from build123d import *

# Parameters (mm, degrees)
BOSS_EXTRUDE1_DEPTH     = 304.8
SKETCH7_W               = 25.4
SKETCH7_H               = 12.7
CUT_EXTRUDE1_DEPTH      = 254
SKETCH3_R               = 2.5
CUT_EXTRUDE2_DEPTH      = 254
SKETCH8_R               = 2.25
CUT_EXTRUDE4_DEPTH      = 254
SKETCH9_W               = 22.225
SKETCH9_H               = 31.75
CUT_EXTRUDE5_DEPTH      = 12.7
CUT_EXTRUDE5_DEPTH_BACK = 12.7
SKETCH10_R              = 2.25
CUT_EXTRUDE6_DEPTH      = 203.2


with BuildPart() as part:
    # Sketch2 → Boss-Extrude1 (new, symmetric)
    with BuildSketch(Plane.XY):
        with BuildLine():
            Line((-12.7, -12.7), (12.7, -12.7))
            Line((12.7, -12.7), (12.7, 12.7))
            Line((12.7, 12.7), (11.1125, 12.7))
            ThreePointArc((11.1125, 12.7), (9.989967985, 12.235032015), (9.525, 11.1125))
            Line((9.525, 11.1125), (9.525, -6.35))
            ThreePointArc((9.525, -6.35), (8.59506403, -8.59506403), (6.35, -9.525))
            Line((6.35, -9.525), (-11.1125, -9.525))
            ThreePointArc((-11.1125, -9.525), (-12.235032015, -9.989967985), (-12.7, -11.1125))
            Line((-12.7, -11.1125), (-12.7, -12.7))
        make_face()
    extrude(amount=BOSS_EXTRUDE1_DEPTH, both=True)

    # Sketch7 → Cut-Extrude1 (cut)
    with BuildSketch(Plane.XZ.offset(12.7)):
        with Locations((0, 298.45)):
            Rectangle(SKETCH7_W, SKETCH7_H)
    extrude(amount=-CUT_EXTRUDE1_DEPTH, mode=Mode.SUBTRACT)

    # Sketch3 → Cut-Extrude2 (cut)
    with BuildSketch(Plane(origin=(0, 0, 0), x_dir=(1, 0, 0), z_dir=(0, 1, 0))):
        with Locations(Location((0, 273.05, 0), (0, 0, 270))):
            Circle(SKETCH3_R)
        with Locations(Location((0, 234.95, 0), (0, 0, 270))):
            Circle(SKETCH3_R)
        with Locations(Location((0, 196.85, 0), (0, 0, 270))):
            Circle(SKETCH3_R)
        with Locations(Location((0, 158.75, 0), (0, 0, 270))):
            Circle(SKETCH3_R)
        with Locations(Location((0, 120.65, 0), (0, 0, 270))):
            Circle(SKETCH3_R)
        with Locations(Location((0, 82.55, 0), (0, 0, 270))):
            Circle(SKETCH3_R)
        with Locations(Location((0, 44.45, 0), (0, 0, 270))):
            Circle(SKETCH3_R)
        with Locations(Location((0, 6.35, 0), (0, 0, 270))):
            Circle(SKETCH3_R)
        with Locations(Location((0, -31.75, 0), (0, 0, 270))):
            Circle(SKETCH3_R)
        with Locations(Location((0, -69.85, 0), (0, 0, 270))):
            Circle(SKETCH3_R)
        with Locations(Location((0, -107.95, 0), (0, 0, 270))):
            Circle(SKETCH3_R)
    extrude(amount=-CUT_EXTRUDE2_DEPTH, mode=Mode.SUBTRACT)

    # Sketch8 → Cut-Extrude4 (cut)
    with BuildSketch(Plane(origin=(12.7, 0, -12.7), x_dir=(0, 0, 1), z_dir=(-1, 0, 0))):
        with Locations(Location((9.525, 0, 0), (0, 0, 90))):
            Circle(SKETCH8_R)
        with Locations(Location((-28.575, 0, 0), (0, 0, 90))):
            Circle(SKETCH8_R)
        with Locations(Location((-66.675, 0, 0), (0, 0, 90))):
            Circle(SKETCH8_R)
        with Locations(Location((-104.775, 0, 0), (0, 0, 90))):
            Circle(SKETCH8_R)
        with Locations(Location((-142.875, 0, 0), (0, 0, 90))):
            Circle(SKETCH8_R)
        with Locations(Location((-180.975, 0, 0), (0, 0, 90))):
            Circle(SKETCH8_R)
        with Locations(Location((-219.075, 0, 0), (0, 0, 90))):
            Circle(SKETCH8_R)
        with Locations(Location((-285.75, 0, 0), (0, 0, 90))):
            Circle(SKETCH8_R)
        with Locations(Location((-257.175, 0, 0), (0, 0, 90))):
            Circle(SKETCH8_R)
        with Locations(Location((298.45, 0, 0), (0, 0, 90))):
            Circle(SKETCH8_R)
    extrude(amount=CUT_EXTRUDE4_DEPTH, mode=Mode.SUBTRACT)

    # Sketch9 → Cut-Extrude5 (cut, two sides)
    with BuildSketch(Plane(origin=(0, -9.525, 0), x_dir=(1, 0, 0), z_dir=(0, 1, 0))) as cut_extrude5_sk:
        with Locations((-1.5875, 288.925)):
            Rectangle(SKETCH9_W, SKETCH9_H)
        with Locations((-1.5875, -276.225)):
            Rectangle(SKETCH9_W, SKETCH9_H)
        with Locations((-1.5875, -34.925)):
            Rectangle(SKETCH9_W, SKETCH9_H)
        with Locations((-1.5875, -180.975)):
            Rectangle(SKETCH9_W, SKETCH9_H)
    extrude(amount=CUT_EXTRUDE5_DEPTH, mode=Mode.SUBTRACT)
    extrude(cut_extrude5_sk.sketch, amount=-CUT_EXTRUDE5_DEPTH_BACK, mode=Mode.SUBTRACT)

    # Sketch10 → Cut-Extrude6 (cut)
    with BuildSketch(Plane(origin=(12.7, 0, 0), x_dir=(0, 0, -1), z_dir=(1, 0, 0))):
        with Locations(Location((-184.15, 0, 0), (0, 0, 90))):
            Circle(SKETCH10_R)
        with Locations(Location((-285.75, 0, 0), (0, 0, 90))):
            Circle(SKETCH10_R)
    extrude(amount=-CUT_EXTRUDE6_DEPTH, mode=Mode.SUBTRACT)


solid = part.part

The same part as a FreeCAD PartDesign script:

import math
import FreeCAD as App
import Part
import Sketcher
from FreeCAD import Vector
Q = App.Units.Quantity


def add_polygon(sketch, points):
    """Adds a closed chain of lines whose ends are joined by coincident constraints."""
    first, n = sketch.GeometryCount, len(points)
    for a, b in zip(points, points[1:] + points[:1]):
        sketch.addGeometry(Part.LineSegment(App.Vector(*a, 0), App.Vector(*b, 0)), False)
    for i in range(n):
        sketch.addConstraint(Sketcher.Constraint("Coincident", first + i, 2, first + (i + 1) % n, 1))

doc = App.newDocument("Part")
body = doc.addObject("PartDesign::Body", "Body")

# Sketch on XY plane
sketch1 = body.newObject("Sketcher::SketchObject", "Sketch")
sketch1.AttachmentSupport = (doc.getObject("XY_Plane"), [""])
sketch1.MapMode = "FlatFace"
sketch1.addGeometry(Part.LineSegment(Vector(-12.7, -12.7, 0), Vector(12.7, -12.7, 0)), False)
sketch1.addGeometry(Part.LineSegment(Vector(12.7, -12.7, 0), Vector(12.7, 12.7, 0)), False)
sketch1.addGeometry(Part.LineSegment(Vector(12.7, 12.7, 0), Vector(11.1125, 12.7, 0)), False)
sketch1.addGeometry(Part.ArcOfCircle(Part.Circle(Vector(11.1125, 11.1125, 0), Vector(0, 0, 1), 1.5875), math.radians(90), math.radians(180)), False)
sketch1.addGeometry(Part.LineSegment(Vector(9.525, 11.1125, 0), Vector(9.525, -6.35, 0)), False)
sketch1.addGeometry(Part.ArcOfCircle(Part.Circle(Vector(6.35, -6.35, 0), Vector(0, 0, 1), 3.175), math.radians(-90), math.radians(0)), False)
sketch1.addGeometry(Part.LineSegment(Vector(6.35, -9.525, 0), Vector(-11.1125, -9.525, 0)), False)
sketch1.addGeometry(Part.ArcOfCircle(Part.Circle(Vector(-11.1125, -11.1125, 0), Vector(0, 0, 1), 1.5875), math.radians(90), math.radians(180)), False)
sketch1.addGeometry(Part.LineSegment(Vector(-12.7, -11.1125, 0), Vector(-12.7, -12.7, 0)), False)
sketch1.addConstraint(Sketcher.Constraint("Coincident", 0, 2, 1, 1))
sketch1.addConstraint(Sketcher.Constraint("Coincident", 1, 2, 2, 1))
sketch1.addConstraint(Sketcher.Constraint("Tangent", 2, 2, 3, 1))
sketch1.addConstraint(Sketcher.Constraint("Tangent", 3, 2, 4, 1))
sketch1.addConstraint(Sketcher.Constraint("Tangent", 4, 2, 5, 2))
sketch1.addConstraint(Sketcher.Constraint("Tangent", 5, 1, 6, 1))
sketch1.addConstraint(Sketcher.Constraint("Tangent", 6, 2, 7, 1))
sketch1.addConstraint(Sketcher.Constraint("Tangent", 7, 2, 8, 1))
sketch1.addConstraint(Sketcher.Constraint("Coincident", 8, 2, 0, 1))
sketch1.addConstraint(Sketcher.Constraint("Horizontal", 0))
sketch1.addConstraint(Sketcher.Constraint("Vertical", 1))
sketch1.addConstraint(Sketcher.Constraint("Horizontal", 2))
sketch1.addConstraint(Sketcher.Constraint("Vertical", 4))
sketch1.addConstraint(Sketcher.Constraint("Horizontal", 6))
sketch1.addConstraint(Sketcher.Constraint("Vertical", 8))
sketch1.addConstraint(Sketcher.Constraint("Equal", 3, 7))
sketch1.addConstraint(Sketcher.Constraint("Symmetric", 3, 3, 7, 3, -1, 1))
sketch1.addConstraint(Sketcher.Constraint("Symmetric", 1, 2, 8, 2, -1, 1))
sketch1.addConstraint(Sketcher.Constraint("Equal", 0, 1))
sketch1.addConstraint(Sketcher.Constraint("DistanceX", 0, 1, 0, 2, Q("1 in")))
sketch1.addConstraint(Sketcher.Constraint("Radius", 3, Q("0.0625 in")))
sketch1.addConstraint(Sketcher.Constraint("Radius", 5, Q("0.125 in")))
pad1 = body.newObject("PartDesign::Pad", "Pad")
pad1.Profile = sketch1
pad1.Length = Q("24 in")
pad1.Midplane = True

# Sketch on XZ plane
sketch2 = body.newObject("Sketcher::SketchObject", "Sketch001")
sketch2.AttachmentSupport = (doc.getObject("XZ_Plane"), [""])
sketch2.MapMode = "FlatFace"
sketch2.AttachmentOffset = App.Placement(Vector(0, 0, 0.5 * 25.4), App.Rotation())
add_polygon(sketch2, [(-12.7, 304.8), (-12.7, 292.1), (12.7, 292.1), (12.7, 304.8)])  # lines 0-3
sketch2.addConstraint(Sketcher.Constraint("Vertical", 0))
sketch2.addConstraint(Sketcher.Constraint("Horizontal", 1))
sketch2.addConstraint(Sketcher.Constraint("Vertical", 2))
sketch2.addConstraint(Sketcher.Constraint("Horizontal", 3))
sketch2.addConstraint(Sketcher.Constraint("DistanceX", 1, 1, 1, 2, Q("1 in")))
sketch2.addConstraint(Sketcher.Constraint("DistanceY", 0, 2, 0, 1, Q("0.5 in")))
sketch2.addConstraint(Sketcher.Constraint("DistanceY", -1, 1, 2, 2, Q("12 in")))
sketch2.addConstraint(Sketcher.Constraint("DistanceX", 0, 2, -1, 1, Q("0.5 in")))
pocket1 = body.newObject("PartDesign::Pocket", "Pocket")
pocket1.Profile = sketch2
pocket1.Length = Q("10 in")

# Sketch on XZ plane
sketch3 = body.newObject("Sketcher::SketchObject", "Sketch002")
sketch3.AttachmentSupport = (doc.getObject("XZ_Plane"), [""])
sketch3.MapMode = "FlatFace"
sketch3.addGeometry(Part.Circle(Vector(0, -273.05, 0), Vector(0, 0, 1), 2.5), False)
sketch3.addGeometry(Part.Circle(Vector(0, -234.95, 0), Vector(0, 0, 1), 2.5), False)
sketch3.addGeometry(Part.Circle(Vector(0, -196.85, 0), Vector(0, 0, 1), 2.5), False)
sketch3.addGeometry(Part.Circle(Vector(0, -158.75, 0), Vector(0, 0, 1), 2.5), False)
sketch3.addGeometry(Part.Circle(Vector(0, -120.65, 0), Vector(0, 0, 1), 2.5), False)
sketch3.addGeometry(Part.Circle(Vector(0, -82.55, 0), Vector(0, 0, 1), 2.5), False)
sketch3.addGeometry(Part.Circle(Vector(0, -44.45, 0), Vector(0, 0, 1), 2.5), False)
sketch3.addGeometry(Part.Circle(Vector(0, -6.35, 0), Vector(0, 0, 1), 2.5), False)
sketch3.addGeometry(Part.Circle(Vector(0, 31.75, 0), Vector(0, 0, 1), 2.5), False)
sketch3.addGeometry(Part.Circle(Vector(0, 69.85, 0), Vector(0, 0, 1), 2.5), False)
sketch3.addGeometry(Part.Circle(Vector(0, 107.95, 0), Vector(0, 0, 1), 2.5), False)
sketch3.addConstraint(Sketcher.Constraint("Equal", 0, 1))
sketch3.addConstraint(Sketcher.Constraint("Equal", 1, 2))
sketch3.addConstraint(Sketcher.Constraint("Equal", 2, 3))
sketch3.addConstraint(Sketcher.Constraint("Equal", 3, 4))
sketch3.addConstraint(Sketcher.Constraint("Equal", 4, 5))
sketch3.addConstraint(Sketcher.Constraint("Equal", 5, 6))
sketch3.addConstraint(Sketcher.Constraint("Equal", 6, 7))
sketch3.addConstraint(Sketcher.Constraint("Equal", 7, 8))
sketch3.addConstraint(Sketcher.Constraint("Equal", 8, 9))
sketch3.addConstraint(Sketcher.Constraint("Equal", 9, 10))
sketch3.addConstraint(Sketcher.Constraint("PointOnObject", 0, 3, -2))
sketch3.addConstraint(Sketcher.Constraint("PointOnObject", 1, 3, -2))
sketch3.addConstraint(Sketcher.Constraint("PointOnObject", 2, 3, -2))
sketch3.addConstraint(Sketcher.Constraint("PointOnObject", 3, 3, -2))
sketch3.addConstraint(Sketcher.Constraint("PointOnObject", 4, 3, -2))
sketch3.addConstraint(Sketcher.Constraint("PointOnObject", 5, 3, -2))
sketch3.addConstraint(Sketcher.Constraint("PointOnObject", 6, 3, -2))
sketch3.addConstraint(Sketcher.Constraint("PointOnObject", 7, 3, -2))
sketch3.addConstraint(Sketcher.Constraint("PointOnObject", 8, 3, -2))
sketch3.addConstraint(Sketcher.Constraint("PointOnObject", 9, 3, -2))
sketch3.addConstraint(Sketcher.Constraint("PointOnObject", 10, 3, -2))
sketch3.addConstraint(Sketcher.Constraint("DistanceY", 0, 3, 2, 3, Q("3 in")))
sketch3.addConstraint(Sketcher.Constraint("DistanceY", 1, 3, 3, 3, Q("3 in")))
sketch3.addConstraint(Sketcher.Constraint("DistanceY", 2, 3, 4, 3, Q("3 in")))
sketch3.addConstraint(Sketcher.Constraint("DistanceY", 3, 3, 5, 3, Q("3 in")))
sketch3.addConstraint(Sketcher.Constraint("DistanceY", 4, 3, 6, 3, Q("3 in")))
sketch3.addConstraint(Sketcher.Constraint("DistanceY", 5, 3, 7, 3, Q("3 in")))
sketch3.addConstraint(Sketcher.Constraint("DistanceY", 6, 3, 8, 3, Q("3 in")))
sketch3.addConstraint(Sketcher.Constraint("DistanceY", 7, 3, 9, 3, Q("3 in")))
sketch3.addConstraint(Sketcher.Constraint("DistanceY", 8, 3, 10, 3, Q("3 in")))
sketch3.addConstraint(Sketcher.Constraint("DistanceY", 0, 3, 1, 3, Q("1.5 in")))
sketch3.addConstraint(Sketcher.Constraint("Diameter", 0, 5.0))
sketch3.addConstraint(Sketcher.Constraint("DistanceY", 0, 3, -1, 1, Q("10.75 in")))
pocket2 = body.newObject("PartDesign::Pocket", "Pocket001")
pocket2.Profile = sketch3
pocket2.Length = Q("10 in")
pocket2.Reversed = True

# Sketch on YZ plane
sketch4 = body.newObject("Sketcher::SketchObject", "Sketch003")
sketch4.AttachmentSupport = (doc.getObject("YZ_Plane"), [""])
sketch4.MapMode = "FlatFace"
sketch4.AttachmentOffset = App.Placement(Vector(0, 0, 0.5 * 25.4), App.Rotation())
sketch4.addGeometry(Part.Circle(Vector(0, -3.175, 0), Vector(0, 0, 1), 2.25), False)
sketch4.addGeometry(Part.Circle(Vector(0, -41.275, 0), Vector(0, 0, 1), 2.25), False)
sketch4.addGeometry(Part.Circle(Vector(0, -79.375, 0), Vector(0, 0, 1), 2.25), False)
sketch4.addGeometry(Part.Circle(Vector(0, -117.475, 0), Vector(0, 0, 1), 2.25), False)
sketch4.addGeometry(Part.Circle(Vector(0, -155.575, 0), Vector(0, 0, 1), 2.25), False)
sketch4.addGeometry(Part.Circle(Vector(0, -193.675, 0), Vector(0, 0, 1), 2.25), False)
sketch4.addGeometry(Part.Circle(Vector(0, -231.775, 0), Vector(0, 0, 1), 2.25), False)
sketch4.addGeometry(Part.Circle(Vector(0, -298.45, 0), Vector(0, 0, 1), 2.25), False)
sketch4.addGeometry(Part.Circle(Vector(0, -269.875, 0), Vector(0, 0, 1), 2.25), False)
sketch4.addGeometry(Part.Circle(Vector(0, 285.75, 0), Vector(0, 0, 1), 2.25), False)
sketch4.addConstraint(Sketcher.Constraint("Equal", 0, 1))
sketch4.addConstraint(Sketcher.Constraint("Equal", 1, 2))
sketch4.addConstraint(Sketcher.Constraint("Equal", 2, 3))
sketch4.addConstraint(Sketcher.Constraint("Equal", 3, 4))
sketch4.addConstraint(Sketcher.Constraint("Equal", 4, 5))
sketch4.addConstraint(Sketcher.Constraint("Equal", 5, 6))
sketch4.addConstraint(Sketcher.Constraint("Equal", 6, 7))
sketch4.addConstraint(Sketcher.Constraint("Equal", 7, 8))
sketch4.addConstraint(Sketcher.Constraint("Equal", 8, 9))
sketch4.addConstraint(Sketcher.Constraint("PointOnObject", 0, 3, -2))
sketch4.addConstraint(Sketcher.Constraint("PointOnObject", 1, 3, -2))
sketch4.addConstraint(Sketcher.Constraint("PointOnObject", 2, 3, -2))
sketch4.addConstraint(Sketcher.Constraint("PointOnObject", 3, 3, -2))
sketch4.addConstraint(Sketcher.Constraint("PointOnObject", 4, 3, -2))
sketch4.addConstraint(Sketcher.Constraint("PointOnObject", 5, 3, -2))
sketch4.addConstraint(Sketcher.Constraint("PointOnObject", 6, 3, -2))
sketch4.addConstraint(Sketcher.Constraint("PointOnObject", 7, 3, -2))
sketch4.addConstraint(Sketcher.Constraint("PointOnObject", 8, 3, -2))
sketch4.addConstraint(Sketcher.Constraint("PointOnObject", 9, 3, -2))
sketch4.addConstraint(Sketcher.Constraint("DistanceY", 2, 3, 0, 3, Q("3 in")))
sketch4.addConstraint(Sketcher.Constraint("DistanceY", 3, 3, 1, 3, Q("3 in")))
sketch4.addConstraint(Sketcher.Constraint("DistanceY", 4, 3, 2, 3, Q("3 in")))
sketch4.addConstraint(Sketcher.Constraint("DistanceY", 5, 3, 3, 3, Q("3 in")))
sketch4.addConstraint(Sketcher.Constraint("DistanceY", 6, 3, 4, 3, Q("3 in")))
sketch4.addConstraint(Sketcher.Constraint("DistanceY", 8, 3, 5, 3, Q("3 in")))
sketch4.addConstraint(Sketcher.Constraint("DistanceY", 1, 3, 0, 3, Q("1.5 in")))
sketch4.addConstraint(Sketcher.Constraint("Diameter", 0, 4.5))
sketch4.addConstraint(Sketcher.Constraint("DistanceY", 7, 3, -1, 1, Q("11.75 in")))
sketch4.addConstraint(Sketcher.Constraint("DistanceY", -1, 1, 9, 3, Q("11.25 in")))
sketch4.addConstraint(Sketcher.Constraint("DistanceY", 0, 3, -1, 1, Q("0.125 in")))
pocket3 = body.newObject("PartDesign::Pocket", "Pocket002")
pocket3.Profile = sketch4
pocket3.Length = Q("10 in")

# Sketch on XZ plane
sketch5 = body.newObject("Sketcher::SketchObject", "Sketch004")
sketch5.AttachmentSupport = (doc.getObject("XZ_Plane"), [""])
sketch5.MapMode = "FlatFace"
sketch5.AttachmentOffset = App.Placement(Vector(0, 0, 0.375 * 25.4), App.Rotation())
add_polygon(sketch5, [(-12.7, -304.8), (-12.7, -273.05), (9.525, -273.05), (9.525, -304.8)])  # lines 0-3
add_polygon(sketch5, [(-12.7, 260.35), (-12.7, 292.1), (9.525, 292.1), (9.525, 260.35)])  # lines 4-7
add_polygon(sketch5, [(-12.7, 19.05), (-12.7, 50.8), (9.525, 50.8), (9.525, 19.05)])  # lines 8-11
add_polygon(sketch5, [(-12.7, 165.1), (-12.7, 196.85), (9.525, 196.85), (9.525, 165.1)])  # lines 12-15
sketch5.addConstraint(Sketcher.Constraint("Vertical", 0))
sketch5.addConstraint(Sketcher.Constraint("Horizontal", 1))
sketch5.addConstraint(Sketcher.Constraint("Vertical", 2))
sketch5.addConstraint(Sketcher.Constraint("Horizontal", 3))
sketch5.addConstraint(Sketcher.Constraint("Vertical", 4))
sketch5.addConstraint(Sketcher.Constraint("Horizontal", 5))
sketch5.addConstraint(Sketcher.Constraint("Vertical", 6))
sketch5.addConstraint(Sketcher.Constraint("Horizontal", 7))
sketch5.addConstraint(Sketcher.Constraint("Vertical", 8))
sketch5.addConstraint(Sketcher.Constraint("Horizontal", 9))
sketch5.addConstraint(Sketcher.Constraint("Vertical", 10))
sketch5.addConstraint(Sketcher.Constraint("Horizontal", 11))
sketch5.addConstraint(Sketcher.Constraint("Vertical", 12))
sketch5.addConstraint(Sketcher.Constraint("Horizontal", 13))
sketch5.addConstraint(Sketcher.Constraint("Vertical", 14))
sketch5.addConstraint(Sketcher.Constraint("Horizontal", 15))
sketch5.addConstraint(Sketcher.Constraint("Vertical", 3, 2, 4, 2))
sketch5.addConstraint(Sketcher.Constraint("Vertical", 2, 2, 5, 2))
sketch5.addConstraint(Sketcher.Constraint("Vertical", 7, 2, 8, 2))
sketch5.addConstraint(Sketcher.Constraint("Vertical", 6, 2, 9, 2))
sketch5.addConstraint(Sketcher.Constraint("Vertical", 11, 2, 12, 2))
sketch5.addConstraint(Sketcher.Constraint("Vertical", 10, 2, 13, 2))
sketch5.addConstraint(Sketcher.Constraint("Equal", 2, 4))
sketch5.addConstraint(Sketcher.Constraint("Equal", 6, 8))
sketch5.addConstraint(Sketcher.Constraint("Equal", 10, 12))
sketch5.addConstraint(Sketcher.Constraint("DistanceY", 2, 2, -1, 1, Q("12 in")))
sketch5.addConstraint(Sketcher.Constraint("DistanceY", -1, 1, 8, 2, Q("2 in")))
sketch5.addConstraint(Sketcher.Constraint("DistanceY", 1, 2, 6, 2, Q("21 in")))
sketch5.addConstraint(Sketcher.Constraint("DistanceY", 0, 1, 0, 2, Q("1.25 in")))
sketch5.addConstraint(Sketcher.Constraint("DistanceX", 0, 2, -1, 1, Q("0.5 in")))
sketch5.addConstraint(Sketcher.Constraint("DistanceY", -1, 1, 14, 2, Q("6.5 in")))
sketch5.addConstraint(Sketcher.Constraint("DistanceX", 1, 1, 1, 2, Q("0.875 in")))
pocket4 = body.newObject("PartDesign::Pocket", "Pocket003")
pocket4.Profile = sketch5
pocket4.Type = "ThroughAll"
pocket4.Midplane = True

# Sketch on YZ plane
sketch6 = body.newObject("Sketcher::SketchObject", "Sketch005")
sketch6.AttachmentSupport = (doc.getObject("YZ_Plane"), [""])
sketch6.MapMode = "FlatFace"
sketch6.AttachmentOffset = App.Placement(Vector(0, 0, 0.5 * 25.4), App.Rotation())
sketch6.addGeometry(Part.Circle(Vector(0, 184.15, 0), Vector(0, 0, 1), 2.25), False)
sketch6.addGeometry(Part.Circle(Vector(0, 285.75, 0), Vector(0, 0, 1), 2.25), False)
sketch6.addConstraint(Sketcher.Constraint("Equal", 0, 1))
sketch6.addConstraint(Sketcher.Constraint("PointOnObject", 0, 3, -2))
sketch6.addConstraint(Sketcher.Constraint("PointOnObject", 1, 3, -2))
sketch6.addConstraint(Sketcher.Constraint("DistanceY", 0, 3, 1, 3, Q("4 in")))
sketch6.addConstraint(Sketcher.Constraint("Diameter", 0, 4.5))
sketch6.addConstraint(Sketcher.Constraint("DistanceY", -1, 1, 0, 3, Q("7.25 in")))
pocket5 = body.newObject("PartDesign::Pocket", "Pocket004")
pocket5.Profile = sketch6
pocket5.Length = Q("8 in")

doc.recompute()
